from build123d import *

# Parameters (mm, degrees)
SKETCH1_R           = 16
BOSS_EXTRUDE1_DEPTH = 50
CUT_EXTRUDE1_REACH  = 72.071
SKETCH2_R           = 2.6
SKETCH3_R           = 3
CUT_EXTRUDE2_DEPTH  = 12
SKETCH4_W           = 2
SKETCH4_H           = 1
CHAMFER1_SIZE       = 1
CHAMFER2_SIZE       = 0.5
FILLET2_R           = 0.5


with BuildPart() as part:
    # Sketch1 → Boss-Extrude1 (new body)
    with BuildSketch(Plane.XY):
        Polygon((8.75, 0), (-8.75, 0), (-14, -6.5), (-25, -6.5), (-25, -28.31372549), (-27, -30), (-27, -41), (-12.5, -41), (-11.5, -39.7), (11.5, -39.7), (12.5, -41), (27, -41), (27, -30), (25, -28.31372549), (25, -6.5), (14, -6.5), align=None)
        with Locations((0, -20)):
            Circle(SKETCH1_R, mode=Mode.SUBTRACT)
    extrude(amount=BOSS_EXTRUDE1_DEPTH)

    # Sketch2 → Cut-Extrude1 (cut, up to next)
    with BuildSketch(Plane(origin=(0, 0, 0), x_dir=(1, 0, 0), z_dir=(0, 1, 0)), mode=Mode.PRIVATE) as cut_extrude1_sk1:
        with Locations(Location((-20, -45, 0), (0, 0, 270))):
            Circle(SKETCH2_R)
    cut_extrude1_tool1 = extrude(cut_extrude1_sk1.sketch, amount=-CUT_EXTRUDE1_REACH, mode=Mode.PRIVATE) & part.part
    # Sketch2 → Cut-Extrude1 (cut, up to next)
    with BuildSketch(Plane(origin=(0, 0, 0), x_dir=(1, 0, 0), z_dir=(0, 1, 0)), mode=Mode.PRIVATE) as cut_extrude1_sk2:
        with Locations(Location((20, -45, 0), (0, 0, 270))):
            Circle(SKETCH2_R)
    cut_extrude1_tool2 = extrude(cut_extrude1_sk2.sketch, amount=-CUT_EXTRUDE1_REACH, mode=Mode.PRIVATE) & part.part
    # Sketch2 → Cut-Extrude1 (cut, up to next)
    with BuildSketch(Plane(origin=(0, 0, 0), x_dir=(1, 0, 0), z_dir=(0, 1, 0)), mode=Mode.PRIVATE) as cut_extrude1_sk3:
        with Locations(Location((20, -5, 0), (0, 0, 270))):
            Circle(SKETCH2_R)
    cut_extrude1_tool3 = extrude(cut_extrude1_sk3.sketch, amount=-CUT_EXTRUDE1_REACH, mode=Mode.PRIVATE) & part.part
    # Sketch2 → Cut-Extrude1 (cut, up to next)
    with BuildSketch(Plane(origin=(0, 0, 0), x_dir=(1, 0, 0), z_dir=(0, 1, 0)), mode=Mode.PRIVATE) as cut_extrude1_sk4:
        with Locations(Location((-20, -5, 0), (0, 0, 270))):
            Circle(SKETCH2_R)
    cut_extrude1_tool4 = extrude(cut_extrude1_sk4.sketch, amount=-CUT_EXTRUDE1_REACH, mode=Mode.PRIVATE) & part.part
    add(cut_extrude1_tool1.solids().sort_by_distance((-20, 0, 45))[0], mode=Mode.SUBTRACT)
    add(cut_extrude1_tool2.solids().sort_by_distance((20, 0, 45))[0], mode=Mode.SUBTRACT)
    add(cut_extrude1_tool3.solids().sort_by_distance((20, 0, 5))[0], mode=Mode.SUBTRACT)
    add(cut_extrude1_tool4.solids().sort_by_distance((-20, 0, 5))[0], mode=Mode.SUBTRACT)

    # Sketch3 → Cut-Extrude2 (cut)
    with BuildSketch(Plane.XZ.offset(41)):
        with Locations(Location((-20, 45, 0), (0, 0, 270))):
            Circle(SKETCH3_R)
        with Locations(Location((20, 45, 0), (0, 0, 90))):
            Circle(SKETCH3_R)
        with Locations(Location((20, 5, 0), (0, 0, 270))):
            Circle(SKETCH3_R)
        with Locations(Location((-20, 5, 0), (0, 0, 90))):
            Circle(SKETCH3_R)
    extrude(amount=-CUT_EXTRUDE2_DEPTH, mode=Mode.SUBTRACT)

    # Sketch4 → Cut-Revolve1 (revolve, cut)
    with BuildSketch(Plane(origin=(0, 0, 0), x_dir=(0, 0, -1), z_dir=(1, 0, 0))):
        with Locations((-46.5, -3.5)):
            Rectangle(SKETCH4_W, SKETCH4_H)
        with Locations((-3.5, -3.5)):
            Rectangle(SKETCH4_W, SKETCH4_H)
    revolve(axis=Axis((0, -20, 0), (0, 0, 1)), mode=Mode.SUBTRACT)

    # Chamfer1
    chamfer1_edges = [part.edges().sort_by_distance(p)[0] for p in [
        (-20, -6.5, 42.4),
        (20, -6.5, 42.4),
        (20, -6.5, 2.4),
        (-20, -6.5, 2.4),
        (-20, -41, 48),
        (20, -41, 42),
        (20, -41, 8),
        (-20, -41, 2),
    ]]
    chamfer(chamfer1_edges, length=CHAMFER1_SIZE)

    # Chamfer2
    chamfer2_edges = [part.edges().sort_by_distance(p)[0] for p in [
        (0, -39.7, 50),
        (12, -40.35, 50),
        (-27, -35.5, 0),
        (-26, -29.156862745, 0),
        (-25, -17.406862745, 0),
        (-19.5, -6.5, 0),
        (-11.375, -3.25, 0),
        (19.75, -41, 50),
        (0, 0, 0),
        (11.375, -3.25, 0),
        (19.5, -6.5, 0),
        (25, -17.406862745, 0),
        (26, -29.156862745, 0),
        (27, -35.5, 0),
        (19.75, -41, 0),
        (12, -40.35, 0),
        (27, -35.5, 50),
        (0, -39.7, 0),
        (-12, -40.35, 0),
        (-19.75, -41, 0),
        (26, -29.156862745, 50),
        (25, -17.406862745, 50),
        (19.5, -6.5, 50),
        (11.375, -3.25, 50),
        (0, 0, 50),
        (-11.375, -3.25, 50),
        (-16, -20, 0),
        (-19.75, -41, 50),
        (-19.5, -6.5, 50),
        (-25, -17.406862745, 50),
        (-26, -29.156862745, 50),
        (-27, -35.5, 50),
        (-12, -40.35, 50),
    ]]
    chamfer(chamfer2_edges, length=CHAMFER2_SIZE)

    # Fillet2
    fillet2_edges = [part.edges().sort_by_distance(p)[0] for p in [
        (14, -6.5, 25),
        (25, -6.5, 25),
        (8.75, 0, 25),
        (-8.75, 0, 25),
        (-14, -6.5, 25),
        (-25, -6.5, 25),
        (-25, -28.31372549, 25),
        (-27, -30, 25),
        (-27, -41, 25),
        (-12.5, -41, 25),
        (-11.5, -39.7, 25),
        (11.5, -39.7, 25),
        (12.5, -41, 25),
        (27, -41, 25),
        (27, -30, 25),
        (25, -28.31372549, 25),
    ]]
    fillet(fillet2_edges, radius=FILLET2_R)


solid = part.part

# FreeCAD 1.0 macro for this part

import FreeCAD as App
import Part
import Sketcher


def edges_at(feature, points):
    """Names of the edges that pass closest to the given points."""
    edges = feature.Shape.Edges
    near = lambda p: min(range(len(edges)), key=lambda i: edges[i].distToShape(Part.Vertex(*p))[0])
    return sorted({f"Edge{near(p) + 1}" for p in points})

doc = App.newDocument("Part")
body = doc.addObject("PartDesign::Body", "Body")

# Sketch on XY plane
sketch1 = body.newObject("Sketcher::SketchObject", "Sketch")
sketch1.AttachmentSupport = (doc.getObject("XY_Plane"), [""])
sketch1.MapMode = "FlatFace"
sketch1.addGeometry([
    Part.LineSegment(App.Vector(8.8, 0, 0), App.Vector(-8.8, 0, 0)),  # 0
    Part.LineSegment(App.Vector(-8.8, 0, 0), App.Vector(-14, -6.5, 0)),  # 1
    Part.LineSegment(App.Vector(-14, -6.5, 0), App.Vector(-25, -6.5, 0)),  # 2
    Part.LineSegment(App.Vector(-25, -6.5, 0), App.Vector(-25, -28.3, 0)),  # 3
    Part.LineSegment(App.Vector(-25, -28.3, 0), App.Vector(-27, -30, 0)),  # 4
    Part.LineSegment(App.Vector(-27, -30, 0), App.Vector(-27, -41, 0)),  # 5
    Part.LineSegment(App.Vector(-27, -41, 0), App.Vector(-12.5, -41, 0)),  # 6
    Part.LineSegment(App.Vector(-12.5, -41, 0), App.Vector(-11.5, -39.7, 0)),  # 7
    Part.LineSegment(App.Vector(-11.5, -39.7, 0), App.Vector(11.5, -39.7, 0)),  # 8
    Part.LineSegment(App.Vector(11.5, -39.7, 0), App.Vector(12.5, -41, 0)),  # 9
    Part.LineSegment(App.Vector(12.5, -41, 0), App.Vector(27, -41, 0)),  # 10
    Part.LineSegment(App.Vector(27, -41, 0), App.Vector(27, -30, 0)),  # 11
    Part.LineSegment(App.Vector(27, -30, 0), App.Vector(25, -28.3, 0)),  # 12
    Part.LineSegment(App.Vector(25, -28.3, 0), App.Vector(25, -6.5, 0)),  # 13
    Part.LineSegment(App.Vector(25, -6.5, 0), App.Vector(14, -6.5, 0)),  # 14
    Part.LineSegment(App.Vector(14, -6.5, 0), App.Vector(8.8, 0, 0)),  # 15
    Part.Circle(App.Vector(0, -20, 0), App.Vector(0, 0, 1), 16),  # 16
], False)
sketch1.addConstraint([
    Sketcher.Constraint("Coincident", 0, 2, 1, 1),
    Sketcher.Constraint("Coincident", 1, 2, 2, 1),
    Sketcher.Constraint("Coincident", 2, 2, 3, 1),
    Sketcher.Constraint("Coincident", 3, 2, 4, 1),
    Sketcher.Constraint("Coincident", 4, 2, 5, 1),
    Sketcher.Constraint("Coincident", 5, 2, 6, 1),
    Sketcher.Constraint("Coincident", 6, 2, 7, 1),
    Sketcher.Constraint("Coincident", 7, 2, 8, 1),
    Sketcher.Constraint("Coincident", 8, 2, 9, 1),
    Sketcher.Constraint("Coincident", 9, 2, 10, 1),
    Sketcher.Constraint("Coincident", 10, 2, 11, 1),
    Sketcher.Constraint("Coincident", 11, 2, 12, 1),
    Sketcher.Constraint("Coincident", 12, 2, 13, 1),
    Sketcher.Constraint("Coincident", 13, 2, 14, 1),
    Sketcher.Constraint("Coincident", 14, 2, 15, 1),
    Sketcher.Constraint("Coincident", 15, 2, 0, 1),
    Sketcher.Constraint("Horizontal", 0),
    Sketcher.Constraint("Horizontal", 2),
    Sketcher.Constraint("Vertical", 3),
    Sketcher.Constraint("Vertical", 5),
    Sketcher.Constraint("Horizontal", 6),
    Sketcher.Constraint("Horizontal", 8),
    Sketcher.Constraint("Horizontal", 10),
    Sketcher.Constraint("Vertical", 11),
    Sketcher.Constraint("Vertical", 13),
    Sketcher.Constraint("Horizontal", 14),
    Sketcher.Constraint("Symmetric", 0, 2, 15, 2, -1, 1),
    Sketcher.Constraint("Symmetric", 6, 2, 9, 2, -2),
    Sketcher.Constraint("Symmetric", 4, 2, 11, 2, -2),
    Sketcher.Constraint("Symmetric", 3, 2, 12, 2, -2),
    Sketcher.Constraint("Symmetric", 1, 2, 14, 2, -2),
    Sketcher.Constraint("PointOnObject", 16, 3, -2),
    Sketcher.Constraint("Equal", 14, 5),
    Sketcher.Constraint("Equal", 7, 9),
    Sketcher.Constraint("Diameter", 16, 32.0),
    Sketcher.Constraint("DistanceX", 2, 2, 2, 1, 11.0),
    Sketcher.Constraint("DistanceX", 8, 1, 8, 2, 23.0),
    Sketcher.Constraint("DistanceX", 0, 2, 0, 1, 17.5),
    Sketcher.Constraint("DistanceX", 6, 1, 6, 2, 14.5),
    Sketcher.Constraint("DistanceY", 16, 3, -1, 1, 20.0),
    Sketcher.Constraint("DistanceX", 1, 2, -1, 1, 14.0),
    Sketcher.Constraint("DistanceX", 4, 2, -1, 1, 27.0),
    Sketcher.Constraint("DistanceY", 4, 2, -1, 1, 30.0),
    Sketcher.Constraint("DistanceY", 1, 2, -1, 1, 6.5),
    Sketcher.Constraint("DistanceY", 7, 2, -1, 1, 39.7),
    Sketcher.Constraint("DistanceY", 3, 2, 3, 1, 21.813725),
])
pad1 = body.newObject("PartDesign::Pad", "Pad")
pad1.Profile = sketch1
pad1.Length = 50

# Sketch on XZ plane
sketch2 = body.newObject("Sketcher::SketchObject", "Sketch001")
sketch2.AttachmentSupport = (doc.getObject("XZ_Plane"), [""])
sketch2.MapMode = "FlatFace"
sketch2.addGeometry(Part.Circle(App.Vector(-20, 45, 0), App.Vector(0, 0, 1), 2.6), False)
sketch2.addConstraint([
    Sketcher.Constraint("Diameter", 0, 5.2),
    Sketcher.Constraint("DistanceX", 0, 3, -1, 1, 20.0),
    Sketcher.Constraint("DistanceY", -1, 1, 0, 3, 45.0),
])
pocket1 = body.newObject("PartDesign::Pocket", "Pocket")
pocket1.Profile = sketch2
pocket1.Length = 41
pocket1.Reversed = True

# Sketch on XZ plane
sketch3 = body.newObject("Sketcher::SketchObject", "Sketch002")
sketch3.AttachmentSupport = (doc.getObject("XZ_Plane"), [""])
sketch3.MapMode = "FlatFace"
sketch3.addGeometry(Part.Circle(App.Vector(20, 45, 0), App.Vector(0, 0, 1), 2.6), False)
sketch3.addConstraint([
    Sketcher.Constraint("Diameter", 0, 5.2),
    Sketcher.Constraint("DistanceX", -1, 1, 0, 3, 20.0),
    Sketcher.Constraint("DistanceY", -1, 1, 0, 3, 45.0),
])
pocket2 = body.newObject("PartDesign::Pocket", "Pocket001")
pocket2.Profile = sketch3
pocket2.Length = 41
pocket2.Reversed = True

# Sketch on XZ plane
sketch4 = body.newObject("Sketcher::SketchObject", "Sketch003")
sketch4.AttachmentSupport = (doc.getObject("XZ_Plane"), [""])
sketch4.MapMode = "FlatFace"
sketch4.addGeometry(Part.Circle(App.Vector(20, 5, 0), App.Vector(0, 0, 1), 2.6), False)
sketch4.addConstraint([
    Sketcher.Constraint("Diameter", 0, 5.2),
    Sketcher.Constraint("DistanceX", -1, 1, 0, 3, 20.0),
    Sketcher.Constraint("DistanceY", -1, 1, 0, 3, 5.0),
])
pocket3 = body.newObject("PartDesign::Pocket", "Pocket002")
pocket3.Profile = sketch4
pocket3.Length = 41
pocket3.Reversed = True

# Sketch on XZ plane
sketch5 = body.newObject("Sketcher::SketchObject", "Sketch004")
sketch5.AttachmentSupport = (doc.getObject("XZ_Plane"), [""])
sketch5.MapMode = "FlatFace"
sketch5.addGeometry(Part.Circle(App.Vector(-20, 5, 0), App.Vector(0, 0, 1), 2.6), False)
sketch5.addConstraint([
    Sketcher.Constraint("Diameter", 0, 5.2),
    Sketcher.Constraint("DistanceX", 0, 3, -1, 1, 20.0),
    Sketcher.Constraint("DistanceY", -1, 1, 0, 3, 5.0),
])
pocket4 = body.newObject("PartDesign::Pocket", "Pocket003")
pocket4.Profile = sketch5
pocket4.Length = 41
pocket4.Reversed = True

# Sketch on XZ plane
sketch6 = body.newObject("Sketcher::SketchObject", "Sketch005")
sketch6.AttachmentSupport = (doc.getObject("XZ_Plane"), [""])
sketch6.MapMode = "FlatFace"
sketch6.AttachmentOffset = App.Placement(App.Vector(0, 0, 41), App.Rotation())
sketch6.addGeometry([
    Part.Circle(App.Vector(-20, 45, 0), App.Vector(0, 0, 1), 3),
    Part.Circle(App.Vector(20, 45, 0), App.Vector(0, 0, 1), 3),
    Part.Circle(App.Vector(20, 5, 0), App.Vector(0, 0, 1), 3),
    Part.Circle(App.Vector(-20, 5, 0), App.Vector(0, 0, 1), 3),
], False)
sketch6.addConstraint([
    Sketcher.Constraint("Equal", 0, 1),
    Sketcher.Constraint("Equal", 1, 2),
    Sketcher.Constraint("Equal", 2, 3),
    Sketcher.Constraint("Symmetric", 0, 3, 1, 3, -2),
    Sketcher.Constraint("Symmetric", 2, 3, 3, 3, -2),
    Sketcher.Constraint("Vertical", 1, 3, 2, 3),
    Sketcher.Constraint("Diameter", 0, 6.0),
    Sketcher.Constraint("DistanceX", 0, 3, -1, 1, 20.0),
    Sketcher.Constraint("DistanceY", -1, 1, 0, 3, 45.0),
    Sketcher.Constraint("DistanceY", -1, 1, 2, 3, 5.0),
])
pocket5 = body.newObject("PartDesign::Pocket", "Pocket004")
pocket5.Profile = sketch6
pocket5.Length = 12

# Sketch on YZ plane
sketch7 = body.newObject("Sketcher::SketchObject", "Sketch006")
sketch7.AttachmentSupport = (doc.getObject("YZ_Plane"), [""])
sketch7.MapMode = "FlatFace"
sketch7.addGeometry([
    Part.LineSegment(App.Vector(-3, 47.5, 0), App.Vector(-4, 47.5, 0)),  # 0
    Part.LineSegment(App.Vector(-4, 47.5, 0), App.Vector(-4, 45.5, 0)),  # 1
    Part.LineSegment(App.Vector(-4, 45.5, 0), App.Vector(-3, 45.5, 0)),  # 2
    Part.LineSegment(App.Vector(-3, 45.5, 0), App.Vector(-3, 47.5, 0)),  # 3
    Part.LineSegment(App.Vector(-3, 4.5, 0), App.Vector(-4, 4.5, 0)),  # 4
    Part.LineSegment(App.Vector(-4, 4.5, 0), App.Vector(-4, 2.5, 0)),  # 5
    Part.LineSegment(App.Vector(-4, 2.5, 0), App.Vector(-3, 2.5, 0)),  # 6
    Part.LineSegment(App.Vector(-3, 2.5, 0), App.Vector(-3, 4.5, 0)),  # 7
], False)
sketch7.addGeometry(Part.LineSegment(App.Vector(-20, 2.5, 0), App.Vector(-20, 47.5, 0)), True)  # axis
sketch7.addConstraint([
    Sketcher.Constraint("Coincident", 0, 2, 1, 1),
    Sketcher.Constraint("Coincident", 1, 2, 2, 1),
    Sketcher.Constraint("Coincident", 2, 2, 3, 1),
    Sketcher.Constraint("Coincident", 3, 2, 0, 1),
    Sketcher.Constraint("Coincident", 4, 2, 5, 1),
    Sketcher.Constraint("Coincident", 5, 2, 6, 1),
    Sketcher.Constraint("Coincident", 6, 2, 7, 1),
    Sketcher.Constraint("Coincident", 7, 2, 4, 1),
    Sketcher.Constraint("Horizontal", 0),
    Sketcher.Constraint("Vertical", 1),
    Sketcher.Constraint("Horizontal", 2),
    Sketcher.Constraint("Vertical", 3),
    Sketcher.Constraint("Horizontal", 4),
    Sketcher.Constraint("Vertical", 5),
    Sketcher.Constraint("Horizontal", 6),
    Sketcher.Constraint("Vertical", 7),
    Sketcher.Constraint("Vertical", 8),
    Sketcher.Constraint("Horizontal", 6, 2, 8, 1),
    Sketcher.Constraint("Horizontal", 3, 2, 8, 2),
    Sketcher.Constraint("Vertical", 1, 2, 4, 2),
    Sketcher.Constraint("Vertical", 3, 2, 6, 2),
    Sketcher.Constraint("Equal", 3, 5),
    Sketcher.Constraint("DistanceX", 0, 2, 0, 1, 1.0),
    Sketcher.Constraint("DistanceY", 1, 2, 1, 1, 2.0),
    Sketcher.Constraint("DistanceY", 8, 1, 8, 2, 45.0),
    Sketcher.Constraint("DistanceX", 0, 2, -1, 1, 4.0),
    Sketcher.Constraint("DistanceX", 8, 1, -1, 1, 20.0),
    Sketcher.Constraint("DistanceY", -1, 1, 0, 2, 47.5),
])
groove = body.newObject("PartDesign::Groove", "Groove")
groove.Profile = sketch7
groove.ReferenceAxis = (sketch7, ["Axis0"])
groove.Angle = 360
doc.recompute()

chamfer = body.newObject("PartDesign::Chamfer", "Chamfer")
chamfer.Base = (groove, edges_at(groove, [
    (-20, -6.5, 42.4),
    (20, -6.5, 42.4),
    (20, -6.5, 2.4),
    (-20, -6.5, 2.4),
    (-20, -41, 48),
    (20, -41, 42),
    (20, -41, 8),
    (-20, -41, 2),
]))
chamfer.Size = 1
doc.recompute()

chamfer2 = body.newObject("PartDesign::Chamfer", "Chamfer001")
chamfer2.Base = (chamfer, edges_at(chamfer, [
    (0, -39.7, 50),
    (12, -40.35, 50),
    (-27, -35.5, 0),
    (-26, -29.157, 0),
    (-25, -17.407, 0),
    (-19.5, -6.5, 0),
    (-11.375, -3.25, 0),
    (19.75, -41, 50),
    (0, 0, 0),
    (11.375, -3.25, 0),
    (19.5, -6.5, 0),
    (25, -17.407, 0),
    (26, -29.157, 0),
    (27, -35.5, 0),
    (19.75, -41, 0),
    (12, -40.35, 0),
    (27, -35.5, 50),
    (0, -39.7, 0),
    (-12, -40.35, 0),
    (-19.75, -41, 0),
    (26, -29.157, 50),
    (25, -17.407, 50),
    (19.5, -6.5, 50),
    (11.375, -3.25, 50),
    (0, 0, 50),
    (-11.375, -3.25, 50),
    (-16, -20, 0),
    (-19.75, -41, 50),
    (-19.5, -6.5, 50),
    (-25, -17.407, 50),
    (-26, -29.157, 50),
    (-27, -35.5, 50),
    (-12, -40.35, 50),
]))
chamfer2.Size = 0.5
doc.recompute()

fillet = body.newObject("PartDesign::Fillet", "Fillet")
fillet.Base = (chamfer2, edges_at(chamfer2, [
    (14, -6.5, 25),
    (25, -6.5, 25),
    (8.75, 0, 25),
    (-8.75, 0, 25),
    (-14, -6.5, 25),
    (-25, -6.5, 25),
    (-25, -28.314, 25),
    (-27, -30, 25),
    (-27, -41, 25),
    (-12.5, -41, 25),
    (-11.5, -39.7, 25),
    (11.5, -39.7, 25),
    (12.5, -41, 25),
    (27, -41, 25),
    (27, -30, 25),
    (25, -28.314, 25),
]))
fillet.Radius = 0.5

doc.recompute()
